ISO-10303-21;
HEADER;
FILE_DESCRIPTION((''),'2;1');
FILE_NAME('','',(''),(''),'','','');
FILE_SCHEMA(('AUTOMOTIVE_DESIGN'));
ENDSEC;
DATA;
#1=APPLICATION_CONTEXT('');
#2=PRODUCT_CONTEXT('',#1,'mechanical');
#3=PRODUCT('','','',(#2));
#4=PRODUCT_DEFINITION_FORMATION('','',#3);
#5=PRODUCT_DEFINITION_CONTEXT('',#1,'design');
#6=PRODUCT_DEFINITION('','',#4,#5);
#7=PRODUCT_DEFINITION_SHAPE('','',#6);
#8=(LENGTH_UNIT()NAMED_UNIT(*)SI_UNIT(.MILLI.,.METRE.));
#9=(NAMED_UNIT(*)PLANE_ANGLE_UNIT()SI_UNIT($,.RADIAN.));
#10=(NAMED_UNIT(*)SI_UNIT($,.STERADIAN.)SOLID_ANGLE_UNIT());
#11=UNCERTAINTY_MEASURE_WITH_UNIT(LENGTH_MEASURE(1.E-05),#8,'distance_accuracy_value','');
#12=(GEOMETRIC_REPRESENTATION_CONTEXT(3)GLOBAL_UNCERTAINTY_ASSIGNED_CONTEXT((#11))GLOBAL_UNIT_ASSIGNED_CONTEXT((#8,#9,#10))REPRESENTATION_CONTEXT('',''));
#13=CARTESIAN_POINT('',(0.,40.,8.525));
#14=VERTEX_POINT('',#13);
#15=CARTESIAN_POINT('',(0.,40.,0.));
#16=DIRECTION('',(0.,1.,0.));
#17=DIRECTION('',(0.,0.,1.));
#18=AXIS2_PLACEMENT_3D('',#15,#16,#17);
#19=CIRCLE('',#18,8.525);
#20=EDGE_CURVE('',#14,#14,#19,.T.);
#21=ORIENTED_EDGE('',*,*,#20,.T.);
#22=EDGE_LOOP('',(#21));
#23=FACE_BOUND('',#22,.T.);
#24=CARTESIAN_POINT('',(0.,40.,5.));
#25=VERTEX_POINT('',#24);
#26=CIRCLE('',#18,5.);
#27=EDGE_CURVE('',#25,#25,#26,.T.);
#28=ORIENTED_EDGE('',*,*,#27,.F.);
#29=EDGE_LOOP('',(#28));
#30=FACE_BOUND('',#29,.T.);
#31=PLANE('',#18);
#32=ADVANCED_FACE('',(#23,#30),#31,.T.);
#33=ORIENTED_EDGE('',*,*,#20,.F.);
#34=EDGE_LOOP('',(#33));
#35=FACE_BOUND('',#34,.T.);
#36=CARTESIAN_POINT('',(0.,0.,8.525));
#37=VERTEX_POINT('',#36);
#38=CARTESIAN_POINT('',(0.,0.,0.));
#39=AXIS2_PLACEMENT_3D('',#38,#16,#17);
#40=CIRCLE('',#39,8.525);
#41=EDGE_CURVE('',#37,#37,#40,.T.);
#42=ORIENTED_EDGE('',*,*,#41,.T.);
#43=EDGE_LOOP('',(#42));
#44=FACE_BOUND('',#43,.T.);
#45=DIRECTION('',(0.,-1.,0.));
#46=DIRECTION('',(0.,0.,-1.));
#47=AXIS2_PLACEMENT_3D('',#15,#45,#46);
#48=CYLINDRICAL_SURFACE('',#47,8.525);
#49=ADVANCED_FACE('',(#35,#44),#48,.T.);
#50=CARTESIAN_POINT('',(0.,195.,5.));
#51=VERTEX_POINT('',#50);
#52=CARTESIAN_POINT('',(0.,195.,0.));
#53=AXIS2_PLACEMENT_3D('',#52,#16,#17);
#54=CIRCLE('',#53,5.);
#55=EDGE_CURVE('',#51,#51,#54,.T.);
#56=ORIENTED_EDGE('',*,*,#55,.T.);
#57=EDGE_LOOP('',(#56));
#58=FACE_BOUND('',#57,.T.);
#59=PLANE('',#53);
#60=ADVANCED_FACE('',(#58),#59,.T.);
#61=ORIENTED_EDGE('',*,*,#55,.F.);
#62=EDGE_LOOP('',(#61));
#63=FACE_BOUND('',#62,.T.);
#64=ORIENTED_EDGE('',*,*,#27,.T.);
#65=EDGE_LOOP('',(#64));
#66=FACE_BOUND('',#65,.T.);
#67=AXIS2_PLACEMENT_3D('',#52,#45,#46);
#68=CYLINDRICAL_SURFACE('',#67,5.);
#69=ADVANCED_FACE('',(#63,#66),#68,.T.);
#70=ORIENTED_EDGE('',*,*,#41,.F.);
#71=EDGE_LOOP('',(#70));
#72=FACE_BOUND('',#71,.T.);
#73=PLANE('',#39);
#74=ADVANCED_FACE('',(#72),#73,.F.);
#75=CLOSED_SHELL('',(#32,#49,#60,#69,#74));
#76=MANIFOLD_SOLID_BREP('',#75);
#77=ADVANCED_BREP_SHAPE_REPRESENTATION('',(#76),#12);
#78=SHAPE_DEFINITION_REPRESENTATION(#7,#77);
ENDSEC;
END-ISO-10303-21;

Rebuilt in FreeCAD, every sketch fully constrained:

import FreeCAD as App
import Part
import Sketcher

V = App.Vector

doc = App.newDocument("Part")
body = doc.addObject("PartDesign::Body", "Body")

# Sketch on XZ plane
sketch1 = body.newObject("Sketcher::SketchObject", "Sketch")
sketch1.AttachmentSupport = (doc.getObject("XZ_Plane"), [""])
sketch1.MapMode = "FlatFace"
sketch1.addGeometry(Part.Circle(V(0, 0, 0), V(0, 0, 1), 9), False)
sketch1.addConstraint([
    Sketcher.Constraint("Coincident", 0, 3, -1, 1),
    Sketcher.Constraint("Diameter", 0, 17.05),
])
pad1 = body.newObject("PartDesign::Pad", "Pad")
pad1.Profile = sketch1
pad1.Length = 40
pad1.Reversed = True

# Sketch on XZ plane
sketch2 = body.newObject("Sketcher::SketchObject", "Sketch001")
sketch2.AttachmentSupport = (doc.getObject("XZ_Plane"), [""])
sketch2.MapMode = "FlatFace"
sketch2.AttachmentOffset = App.Placement(V(0, 0, -40), App.Rotation())
sketch2.addGeometry(Part.Circle(V(0, 0, 0), V(0, 0, 1), 5), False)
sketch2.addConstraint([
    Sketcher.Constraint("Coincident", 0, 3, -1, 1),
    Sketcher.Constraint("Diameter", 0, 10.0),
])
pad2 = body.newObject("PartDesign::Pad", "Pad001")
pad2.Profile = sketch2
pad2.Length = 155
pad2.Reversed = True

doc.recompute()
